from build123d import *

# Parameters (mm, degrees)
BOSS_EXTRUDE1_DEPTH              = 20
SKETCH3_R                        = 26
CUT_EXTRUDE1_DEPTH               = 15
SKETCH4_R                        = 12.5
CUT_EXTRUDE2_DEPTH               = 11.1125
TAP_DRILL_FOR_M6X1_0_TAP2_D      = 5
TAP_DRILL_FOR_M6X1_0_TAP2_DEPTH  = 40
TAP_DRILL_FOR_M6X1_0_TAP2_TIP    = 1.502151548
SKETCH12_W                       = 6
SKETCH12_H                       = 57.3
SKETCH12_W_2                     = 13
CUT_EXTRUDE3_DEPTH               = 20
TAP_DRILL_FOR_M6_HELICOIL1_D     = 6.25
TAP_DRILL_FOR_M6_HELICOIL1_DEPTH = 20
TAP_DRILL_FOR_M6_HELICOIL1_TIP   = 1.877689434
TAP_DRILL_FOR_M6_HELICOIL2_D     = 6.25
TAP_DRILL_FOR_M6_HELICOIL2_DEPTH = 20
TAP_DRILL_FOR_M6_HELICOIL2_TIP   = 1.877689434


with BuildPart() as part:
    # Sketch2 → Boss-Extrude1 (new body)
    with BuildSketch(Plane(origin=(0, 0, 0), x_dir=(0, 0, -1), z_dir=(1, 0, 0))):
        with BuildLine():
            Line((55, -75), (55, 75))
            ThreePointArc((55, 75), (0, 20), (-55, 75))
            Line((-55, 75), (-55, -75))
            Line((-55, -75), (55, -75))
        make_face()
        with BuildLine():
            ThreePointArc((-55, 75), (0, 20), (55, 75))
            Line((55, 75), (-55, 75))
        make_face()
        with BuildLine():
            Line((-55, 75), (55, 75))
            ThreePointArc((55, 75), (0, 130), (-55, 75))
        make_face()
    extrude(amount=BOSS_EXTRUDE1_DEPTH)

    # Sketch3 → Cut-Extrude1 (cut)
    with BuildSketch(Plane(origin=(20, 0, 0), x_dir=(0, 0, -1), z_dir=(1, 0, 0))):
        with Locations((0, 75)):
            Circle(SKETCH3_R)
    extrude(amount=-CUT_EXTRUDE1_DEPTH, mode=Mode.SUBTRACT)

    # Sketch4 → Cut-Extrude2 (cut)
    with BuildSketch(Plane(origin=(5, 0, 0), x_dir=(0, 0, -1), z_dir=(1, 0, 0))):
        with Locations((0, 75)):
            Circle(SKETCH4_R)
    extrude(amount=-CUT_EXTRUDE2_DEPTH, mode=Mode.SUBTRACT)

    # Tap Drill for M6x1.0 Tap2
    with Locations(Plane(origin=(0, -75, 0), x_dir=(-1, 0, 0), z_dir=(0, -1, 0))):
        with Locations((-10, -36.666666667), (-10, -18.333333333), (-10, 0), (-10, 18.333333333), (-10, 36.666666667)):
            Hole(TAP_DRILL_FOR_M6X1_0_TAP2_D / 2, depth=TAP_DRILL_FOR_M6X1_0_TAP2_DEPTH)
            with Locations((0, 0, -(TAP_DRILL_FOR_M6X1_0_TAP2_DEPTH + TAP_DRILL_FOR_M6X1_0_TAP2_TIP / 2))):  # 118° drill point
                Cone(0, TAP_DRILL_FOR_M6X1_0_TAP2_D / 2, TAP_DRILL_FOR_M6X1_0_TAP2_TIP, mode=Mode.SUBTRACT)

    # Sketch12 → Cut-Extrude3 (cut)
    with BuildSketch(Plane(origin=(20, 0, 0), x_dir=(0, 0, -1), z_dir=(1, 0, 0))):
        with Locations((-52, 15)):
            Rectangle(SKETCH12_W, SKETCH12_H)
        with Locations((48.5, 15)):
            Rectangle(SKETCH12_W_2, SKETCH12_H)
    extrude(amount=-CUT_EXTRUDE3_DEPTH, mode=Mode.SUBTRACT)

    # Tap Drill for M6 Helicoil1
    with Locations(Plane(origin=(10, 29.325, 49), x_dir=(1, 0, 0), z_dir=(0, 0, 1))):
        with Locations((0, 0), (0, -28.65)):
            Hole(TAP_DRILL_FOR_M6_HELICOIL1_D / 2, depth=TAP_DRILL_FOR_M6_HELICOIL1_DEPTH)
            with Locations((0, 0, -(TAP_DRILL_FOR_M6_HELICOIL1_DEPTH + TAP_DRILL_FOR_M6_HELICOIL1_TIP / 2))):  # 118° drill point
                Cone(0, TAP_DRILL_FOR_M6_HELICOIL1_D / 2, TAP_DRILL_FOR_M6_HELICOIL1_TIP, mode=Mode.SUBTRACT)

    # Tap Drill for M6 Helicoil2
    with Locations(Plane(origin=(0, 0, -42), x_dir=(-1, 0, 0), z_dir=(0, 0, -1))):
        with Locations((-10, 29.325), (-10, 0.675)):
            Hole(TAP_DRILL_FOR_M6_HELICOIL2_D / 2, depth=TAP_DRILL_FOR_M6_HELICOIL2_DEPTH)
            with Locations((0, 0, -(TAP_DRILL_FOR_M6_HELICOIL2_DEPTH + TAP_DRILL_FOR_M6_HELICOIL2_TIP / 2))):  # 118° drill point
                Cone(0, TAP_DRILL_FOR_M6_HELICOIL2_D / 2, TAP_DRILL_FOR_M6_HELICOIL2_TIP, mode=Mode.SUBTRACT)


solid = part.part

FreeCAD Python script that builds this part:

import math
import FreeCAD as App
import Part
import Sketcher

V = App.Vector


def add_polygon(sketch, points):
    """Adds a closed chain of lines whose ends are joined by coincident constraints."""
    first, n = sketch.GeometryCount, len(points)
    for a, b in zip(points, points[1:] + points[:1]):
        sketch.addGeometry(Part.LineSegment(App.Vector(*a, 0), App.Vector(*b, 0)), False)
    for i in range(n):
        sketch.addConstraint(Sketcher.Constraint("Coincident", first + i, 2, first + (i + 1) % n, 1))

doc = App.newDocument("Part")
body = doc.addObject("PartDesign::Body", "Body")

# Sketch on YZ plane
sketch1 = body.newObject("Sketcher::SketchObject", "Sketch")
sketch1.AttachmentSupport = (doc.getObject("YZ_Plane"), [""])
sketch1.MapMode = "FlatFace"
sketch1.addGeometry([
    Part.LineSegment(V(75, 55, 0), V(-75, 55, 0)),
    Part.LineSegment(V(-75, 55, 0), V(-75, -55, 0)),
    Part.LineSegment(V(-75, -55, 0), V(75, -55, 0)),
    Part.ArcOfCircle(Part.Circle(V(75, 0, 0), V(0, 0, 1), 55), math.radians(-90), math.radians(90)),
], False)
sketch1.addConstraint([
    Sketcher.Constraint("Coincident", 0, 2, 1, 1),
    Sketcher.Constraint("Coincident", 1, 2, 2, 1),
    Sketcher.Constraint("Tangent", 2, 2, 3, 1),
    Sketcher.Constraint("Tangent", 3, 2, 0, 1),
    Sketcher.Constraint("Horizontal", 0),
    Sketcher.Constraint("Vertical", 1),
    Sketcher.Constraint("Horizontal", 2),
    Sketcher.Constraint("Symmetric", 0, 2, 2, 2, -1, 1),
    Sketcher.Constraint("Radius", 3, 55.0),
    Sketcher.Constraint("DistanceX", 0, 2, 0, 1, 150.0),
])
pad1 = body.newObject("PartDesign::Pad", "Pad")
pad1.Profile = sketch1
pad1.Length = 20

# Sketch on YZ plane
sketch2 = body.newObject("Sketcher::SketchObject", "Sketch001")
sketch2.AttachmentSupport = (doc.getObject("YZ_Plane"), [""])
sketch2.MapMode = "FlatFace"
sketch2.AttachmentOffset = App.Placement(V(0, 0, 20), App.Rotation())
sketch2.addGeometry(Part.Circle(V(75, 0, 0), V(0, 0, 1), 26), False)
sketch2.addConstraint([
    Sketcher.Constraint("PointOnObject", 0, 3, -1),
    Sketcher.Constraint("Diameter", 0, 52.0),
    Sketcher.Constraint("DistanceX", -1, 1, 0, 3, 75.0),
])
pocket1 = body.newObject("PartDesign::Pocket", "Pocket")
pocket1.Profile = sketch2
pocket1.Length = 15

# Sketch on YZ plane
sketch3 = body.newObject("Sketcher::SketchObject", "Sketch002")
sketch3.AttachmentSupport = (doc.getObject("YZ_Plane"), [""])
sketch3.MapMode = "FlatFace"
sketch3.AttachmentOffset = App.Placement(V(0, 0, 5), App.Rotation())
sketch3.addGeometry(Part.Circle(V(75, 0, 0), V(0, 0, 1), 12), False)
sketch3.addConstraint([
    Sketcher.Constraint("PointOnObject", 0, 3, -1),
    Sketcher.Constraint("Diameter", 0, 25.0),
    Sketcher.Constraint("DistanceX", -1, 1, 0, 3, 75.0),
])
pocket2 = body.newObject("PartDesign::Pocket", "Pocket001")
pocket2.Profile = sketch3
pocket2.Length = 11.1125

# Sketch on XZ plane
sketch4 = body.newObject("Sketcher::SketchObject", "Sketch003")
sketch4.AttachmentSupport = (doc.getObject("XZ_Plane"), [""])
sketch4.MapMode = "FlatFace"
sketch4.AttachmentOffset = App.Placement(V(0, 0, 75), App.Rotation())
sketch4.addGeometry([
    Part.Circle(V(10, 36.7, 0), V(0, 0, 1), 2.5),  # 0
    Part.Circle(V(10, 18.3, 0), V(0, 0, 1), 2.5),  # 1
    Part.Circle(V(10, 0, 0), V(0, 0, 1), 2.5),  # 2
    Part.Circle(V(10, -18.3, 0), V(0, 0, 1), 2.5),  # 3
    Part.Circle(V(10, -36.7, 0), V(0, 0, 1), 2.5),  # 4
], False)
sketch4.addConstraint([
    Sketcher.Constraint("Equal", 0, 1),
    Sketcher.Constraint("Equal", 1, 2),
    Sketcher.Constraint("Equal", 2, 3),
    Sketcher.Constraint("Equal", 3, 4),
    Sketcher.Constraint("Symmetric", 1, 3, 3, 3, -1),
    Sketcher.Constraint("Symmetric", 0, 3, 4, 3, -1),
    Sketcher.Constraint("PointOnObject", 2, 3, -1),
    Sketcher.Constraint("Vertical", 0, 3, 1, 3),
    Sketcher.Constraint("Vertical", 1, 3, 2, 3),
    Sketcher.Constraint("Diameter", 0, 5.0),
    Sketcher.Constraint("DistanceX", -1, 1, 0, 3, 10.0),
    Sketcher.Constraint("DistanceY", 3, 3, 0, 3, 55.0),
    Sketcher.Constraint("DistanceY", -1, 1, 0, 3, 36.666667),
])
doc.recompute()
hole = body.newObject("PartDesign::Hole", "Hole")
hole.Profile = sketch4
hole.ThreadType = "None"
hole.Diameter = 5
hole.DepthType = "Dimension"
hole.Depth = 40
hole.DrillPoint = "Angled"
hole.DrillPointAngle = 118

# Sketch on YZ plane
sketch5 = body.newObject("Sketcher::SketchObject", "Sketch004")
sketch5.AttachmentSupport = (doc.getObject("YZ_Plane"), [""])
sketch5.MapMode = "FlatFace"
sketch5.AttachmentOffset = App.Placement(V(0, 0, 20), App.Rotation())
add_polygon(sketch5, [(44, 55), (-14, 55), (-14, 49), (44, 49)])  # lines 0-3
add_polygon(sketch5, [(44, -42), (-14, -42), (-14, -55), (44, -55)])  # lines 4-7
sketch5.addConstraint([
    Sketcher.Constraint("Horizontal", 0),
    Sketcher.Constraint("Vertical", 1),
    Sketcher.Constraint("Horizontal", 2),
    Sketcher.Constraint("Vertical", 3),
    Sketcher.Constraint("Horizontal", 4),
    Sketcher.Constraint("Vertical", 5),
    Sketcher.Constraint("Horizontal", 6),
    Sketcher.Constraint("Vertical", 7),
    Sketcher.Constraint("Symmetric", 0, 2, 5, 2, -1),
    Sketcher.Constraint("Vertical", 3, 2, 6, 2),
    Sketcher.Constraint("DistanceY", 1, 2, 1, 1, 6.0),
    Sketcher.Constraint("DistanceY", 5, 2, 5, 1, 13.0),
    Sketcher.Constraint("DistanceX", 0, 2, 0, 1, 57.3),
    Sketcher.Constraint("DistanceY", -1, 1, 0, 2, 55.0),
    Sketcher.Constraint("DistanceX", 0, 2, -1, 1, 13.65),
])
pocket3 = body.newObject("PartDesign::Pocket", "Pocket002")
pocket3.Profile = sketch5
pocket3.Length = 20

# Sketch on XY plane
sketch6 = body.newObject("Sketcher::SketchObject", "Sketch005")
sketch6.AttachmentSupport = (doc.getObject("XY_Plane"), [""])
sketch6.MapMode = "FlatFace"
sketch6.AttachmentOffset = App.Placement(V(0, 0, 49), App.Rotation())
sketch6.addGeometry([
    Part.Circle(V(10, 29.3, 0), V(0, 0, 1), 3.1),
    Part.Circle(V(10, 0.7, 0), V(0, 0, 1), 3.1),
], False)
sketch6.addConstraint([
    Sketcher.Constraint("Equal", 0, 1),
    Sketcher.Constraint("Vertical", 0, 3, 1, 3),
    Sketcher.Constraint("Diameter", 0, 6.25),
    Sketcher.Constraint("DistanceX", -1, 1, 0, 3, 10.0),
    Sketcher.Constraint("DistanceY", 1, 3, 0, 3, 28.65),
    Sketcher.Constraint("DistanceY", -1, 1, 0, 3, 29.325),
])
doc.recompute()
hole2 = body.newObject("PartDesign::Hole", "Hole001")
hole2.Profile = sketch6
hole2.ThreadType = "None"
hole2.Diameter = 6.25
hole2.DepthType = "Dimension"
hole2.Depth = 20
hole2.DrillPoint = "Angled"
hole2.DrillPointAngle = 118

# Sketch on XY plane
sketch7 = body.newObject("Sketcher::SketchObject", "Sketch006")
sketch7.AttachmentSupport = (doc.getObject("XY_Plane"), [""])
sketch7.MapMode = "FlatFace"
sketch7.AttachmentOffset = App.Placement(V(0, 0, -42), App.Rotation())
sketch7.addGeometry([
    Part.Circle(V(10, 29.3, 0), V(0, 0, 1), 3.1),
    Part.Circle(V(10, 0.7, 0), V(0, 0, 1), 3.1),
], False)
sketch7.addConstraint([
    Sketcher.Constraint("Equal", 0, 1),
    Sketcher.Constraint("Vertical", 0, 3, 1, 3),
    Sketcher.Constraint("Diameter", 0, 6.25),
    Sketcher.Constraint("DistanceX", -1, 1, 0, 3, 10.0),
    Sketcher.Constraint("DistanceY", 1, 3, 0, 3, 28.65),
    Sketcher.Constraint("DistanceY", -1, 1, 0, 3, 29.325),
])
doc.recompute()
hole3 = body.newObject("PartDesign::Hole", "Hole002")
hole3.Profile = sketch7
hole3.ThreadType = "None"
hole3.Diameter = 6.25
hole3.DepthType = "Dimension"
hole3.Depth = 20
hole3.DrillPoint = "Angled"
hole3.DrillPointAngle = 118
hole3.Reversed = True

doc.recompute()
